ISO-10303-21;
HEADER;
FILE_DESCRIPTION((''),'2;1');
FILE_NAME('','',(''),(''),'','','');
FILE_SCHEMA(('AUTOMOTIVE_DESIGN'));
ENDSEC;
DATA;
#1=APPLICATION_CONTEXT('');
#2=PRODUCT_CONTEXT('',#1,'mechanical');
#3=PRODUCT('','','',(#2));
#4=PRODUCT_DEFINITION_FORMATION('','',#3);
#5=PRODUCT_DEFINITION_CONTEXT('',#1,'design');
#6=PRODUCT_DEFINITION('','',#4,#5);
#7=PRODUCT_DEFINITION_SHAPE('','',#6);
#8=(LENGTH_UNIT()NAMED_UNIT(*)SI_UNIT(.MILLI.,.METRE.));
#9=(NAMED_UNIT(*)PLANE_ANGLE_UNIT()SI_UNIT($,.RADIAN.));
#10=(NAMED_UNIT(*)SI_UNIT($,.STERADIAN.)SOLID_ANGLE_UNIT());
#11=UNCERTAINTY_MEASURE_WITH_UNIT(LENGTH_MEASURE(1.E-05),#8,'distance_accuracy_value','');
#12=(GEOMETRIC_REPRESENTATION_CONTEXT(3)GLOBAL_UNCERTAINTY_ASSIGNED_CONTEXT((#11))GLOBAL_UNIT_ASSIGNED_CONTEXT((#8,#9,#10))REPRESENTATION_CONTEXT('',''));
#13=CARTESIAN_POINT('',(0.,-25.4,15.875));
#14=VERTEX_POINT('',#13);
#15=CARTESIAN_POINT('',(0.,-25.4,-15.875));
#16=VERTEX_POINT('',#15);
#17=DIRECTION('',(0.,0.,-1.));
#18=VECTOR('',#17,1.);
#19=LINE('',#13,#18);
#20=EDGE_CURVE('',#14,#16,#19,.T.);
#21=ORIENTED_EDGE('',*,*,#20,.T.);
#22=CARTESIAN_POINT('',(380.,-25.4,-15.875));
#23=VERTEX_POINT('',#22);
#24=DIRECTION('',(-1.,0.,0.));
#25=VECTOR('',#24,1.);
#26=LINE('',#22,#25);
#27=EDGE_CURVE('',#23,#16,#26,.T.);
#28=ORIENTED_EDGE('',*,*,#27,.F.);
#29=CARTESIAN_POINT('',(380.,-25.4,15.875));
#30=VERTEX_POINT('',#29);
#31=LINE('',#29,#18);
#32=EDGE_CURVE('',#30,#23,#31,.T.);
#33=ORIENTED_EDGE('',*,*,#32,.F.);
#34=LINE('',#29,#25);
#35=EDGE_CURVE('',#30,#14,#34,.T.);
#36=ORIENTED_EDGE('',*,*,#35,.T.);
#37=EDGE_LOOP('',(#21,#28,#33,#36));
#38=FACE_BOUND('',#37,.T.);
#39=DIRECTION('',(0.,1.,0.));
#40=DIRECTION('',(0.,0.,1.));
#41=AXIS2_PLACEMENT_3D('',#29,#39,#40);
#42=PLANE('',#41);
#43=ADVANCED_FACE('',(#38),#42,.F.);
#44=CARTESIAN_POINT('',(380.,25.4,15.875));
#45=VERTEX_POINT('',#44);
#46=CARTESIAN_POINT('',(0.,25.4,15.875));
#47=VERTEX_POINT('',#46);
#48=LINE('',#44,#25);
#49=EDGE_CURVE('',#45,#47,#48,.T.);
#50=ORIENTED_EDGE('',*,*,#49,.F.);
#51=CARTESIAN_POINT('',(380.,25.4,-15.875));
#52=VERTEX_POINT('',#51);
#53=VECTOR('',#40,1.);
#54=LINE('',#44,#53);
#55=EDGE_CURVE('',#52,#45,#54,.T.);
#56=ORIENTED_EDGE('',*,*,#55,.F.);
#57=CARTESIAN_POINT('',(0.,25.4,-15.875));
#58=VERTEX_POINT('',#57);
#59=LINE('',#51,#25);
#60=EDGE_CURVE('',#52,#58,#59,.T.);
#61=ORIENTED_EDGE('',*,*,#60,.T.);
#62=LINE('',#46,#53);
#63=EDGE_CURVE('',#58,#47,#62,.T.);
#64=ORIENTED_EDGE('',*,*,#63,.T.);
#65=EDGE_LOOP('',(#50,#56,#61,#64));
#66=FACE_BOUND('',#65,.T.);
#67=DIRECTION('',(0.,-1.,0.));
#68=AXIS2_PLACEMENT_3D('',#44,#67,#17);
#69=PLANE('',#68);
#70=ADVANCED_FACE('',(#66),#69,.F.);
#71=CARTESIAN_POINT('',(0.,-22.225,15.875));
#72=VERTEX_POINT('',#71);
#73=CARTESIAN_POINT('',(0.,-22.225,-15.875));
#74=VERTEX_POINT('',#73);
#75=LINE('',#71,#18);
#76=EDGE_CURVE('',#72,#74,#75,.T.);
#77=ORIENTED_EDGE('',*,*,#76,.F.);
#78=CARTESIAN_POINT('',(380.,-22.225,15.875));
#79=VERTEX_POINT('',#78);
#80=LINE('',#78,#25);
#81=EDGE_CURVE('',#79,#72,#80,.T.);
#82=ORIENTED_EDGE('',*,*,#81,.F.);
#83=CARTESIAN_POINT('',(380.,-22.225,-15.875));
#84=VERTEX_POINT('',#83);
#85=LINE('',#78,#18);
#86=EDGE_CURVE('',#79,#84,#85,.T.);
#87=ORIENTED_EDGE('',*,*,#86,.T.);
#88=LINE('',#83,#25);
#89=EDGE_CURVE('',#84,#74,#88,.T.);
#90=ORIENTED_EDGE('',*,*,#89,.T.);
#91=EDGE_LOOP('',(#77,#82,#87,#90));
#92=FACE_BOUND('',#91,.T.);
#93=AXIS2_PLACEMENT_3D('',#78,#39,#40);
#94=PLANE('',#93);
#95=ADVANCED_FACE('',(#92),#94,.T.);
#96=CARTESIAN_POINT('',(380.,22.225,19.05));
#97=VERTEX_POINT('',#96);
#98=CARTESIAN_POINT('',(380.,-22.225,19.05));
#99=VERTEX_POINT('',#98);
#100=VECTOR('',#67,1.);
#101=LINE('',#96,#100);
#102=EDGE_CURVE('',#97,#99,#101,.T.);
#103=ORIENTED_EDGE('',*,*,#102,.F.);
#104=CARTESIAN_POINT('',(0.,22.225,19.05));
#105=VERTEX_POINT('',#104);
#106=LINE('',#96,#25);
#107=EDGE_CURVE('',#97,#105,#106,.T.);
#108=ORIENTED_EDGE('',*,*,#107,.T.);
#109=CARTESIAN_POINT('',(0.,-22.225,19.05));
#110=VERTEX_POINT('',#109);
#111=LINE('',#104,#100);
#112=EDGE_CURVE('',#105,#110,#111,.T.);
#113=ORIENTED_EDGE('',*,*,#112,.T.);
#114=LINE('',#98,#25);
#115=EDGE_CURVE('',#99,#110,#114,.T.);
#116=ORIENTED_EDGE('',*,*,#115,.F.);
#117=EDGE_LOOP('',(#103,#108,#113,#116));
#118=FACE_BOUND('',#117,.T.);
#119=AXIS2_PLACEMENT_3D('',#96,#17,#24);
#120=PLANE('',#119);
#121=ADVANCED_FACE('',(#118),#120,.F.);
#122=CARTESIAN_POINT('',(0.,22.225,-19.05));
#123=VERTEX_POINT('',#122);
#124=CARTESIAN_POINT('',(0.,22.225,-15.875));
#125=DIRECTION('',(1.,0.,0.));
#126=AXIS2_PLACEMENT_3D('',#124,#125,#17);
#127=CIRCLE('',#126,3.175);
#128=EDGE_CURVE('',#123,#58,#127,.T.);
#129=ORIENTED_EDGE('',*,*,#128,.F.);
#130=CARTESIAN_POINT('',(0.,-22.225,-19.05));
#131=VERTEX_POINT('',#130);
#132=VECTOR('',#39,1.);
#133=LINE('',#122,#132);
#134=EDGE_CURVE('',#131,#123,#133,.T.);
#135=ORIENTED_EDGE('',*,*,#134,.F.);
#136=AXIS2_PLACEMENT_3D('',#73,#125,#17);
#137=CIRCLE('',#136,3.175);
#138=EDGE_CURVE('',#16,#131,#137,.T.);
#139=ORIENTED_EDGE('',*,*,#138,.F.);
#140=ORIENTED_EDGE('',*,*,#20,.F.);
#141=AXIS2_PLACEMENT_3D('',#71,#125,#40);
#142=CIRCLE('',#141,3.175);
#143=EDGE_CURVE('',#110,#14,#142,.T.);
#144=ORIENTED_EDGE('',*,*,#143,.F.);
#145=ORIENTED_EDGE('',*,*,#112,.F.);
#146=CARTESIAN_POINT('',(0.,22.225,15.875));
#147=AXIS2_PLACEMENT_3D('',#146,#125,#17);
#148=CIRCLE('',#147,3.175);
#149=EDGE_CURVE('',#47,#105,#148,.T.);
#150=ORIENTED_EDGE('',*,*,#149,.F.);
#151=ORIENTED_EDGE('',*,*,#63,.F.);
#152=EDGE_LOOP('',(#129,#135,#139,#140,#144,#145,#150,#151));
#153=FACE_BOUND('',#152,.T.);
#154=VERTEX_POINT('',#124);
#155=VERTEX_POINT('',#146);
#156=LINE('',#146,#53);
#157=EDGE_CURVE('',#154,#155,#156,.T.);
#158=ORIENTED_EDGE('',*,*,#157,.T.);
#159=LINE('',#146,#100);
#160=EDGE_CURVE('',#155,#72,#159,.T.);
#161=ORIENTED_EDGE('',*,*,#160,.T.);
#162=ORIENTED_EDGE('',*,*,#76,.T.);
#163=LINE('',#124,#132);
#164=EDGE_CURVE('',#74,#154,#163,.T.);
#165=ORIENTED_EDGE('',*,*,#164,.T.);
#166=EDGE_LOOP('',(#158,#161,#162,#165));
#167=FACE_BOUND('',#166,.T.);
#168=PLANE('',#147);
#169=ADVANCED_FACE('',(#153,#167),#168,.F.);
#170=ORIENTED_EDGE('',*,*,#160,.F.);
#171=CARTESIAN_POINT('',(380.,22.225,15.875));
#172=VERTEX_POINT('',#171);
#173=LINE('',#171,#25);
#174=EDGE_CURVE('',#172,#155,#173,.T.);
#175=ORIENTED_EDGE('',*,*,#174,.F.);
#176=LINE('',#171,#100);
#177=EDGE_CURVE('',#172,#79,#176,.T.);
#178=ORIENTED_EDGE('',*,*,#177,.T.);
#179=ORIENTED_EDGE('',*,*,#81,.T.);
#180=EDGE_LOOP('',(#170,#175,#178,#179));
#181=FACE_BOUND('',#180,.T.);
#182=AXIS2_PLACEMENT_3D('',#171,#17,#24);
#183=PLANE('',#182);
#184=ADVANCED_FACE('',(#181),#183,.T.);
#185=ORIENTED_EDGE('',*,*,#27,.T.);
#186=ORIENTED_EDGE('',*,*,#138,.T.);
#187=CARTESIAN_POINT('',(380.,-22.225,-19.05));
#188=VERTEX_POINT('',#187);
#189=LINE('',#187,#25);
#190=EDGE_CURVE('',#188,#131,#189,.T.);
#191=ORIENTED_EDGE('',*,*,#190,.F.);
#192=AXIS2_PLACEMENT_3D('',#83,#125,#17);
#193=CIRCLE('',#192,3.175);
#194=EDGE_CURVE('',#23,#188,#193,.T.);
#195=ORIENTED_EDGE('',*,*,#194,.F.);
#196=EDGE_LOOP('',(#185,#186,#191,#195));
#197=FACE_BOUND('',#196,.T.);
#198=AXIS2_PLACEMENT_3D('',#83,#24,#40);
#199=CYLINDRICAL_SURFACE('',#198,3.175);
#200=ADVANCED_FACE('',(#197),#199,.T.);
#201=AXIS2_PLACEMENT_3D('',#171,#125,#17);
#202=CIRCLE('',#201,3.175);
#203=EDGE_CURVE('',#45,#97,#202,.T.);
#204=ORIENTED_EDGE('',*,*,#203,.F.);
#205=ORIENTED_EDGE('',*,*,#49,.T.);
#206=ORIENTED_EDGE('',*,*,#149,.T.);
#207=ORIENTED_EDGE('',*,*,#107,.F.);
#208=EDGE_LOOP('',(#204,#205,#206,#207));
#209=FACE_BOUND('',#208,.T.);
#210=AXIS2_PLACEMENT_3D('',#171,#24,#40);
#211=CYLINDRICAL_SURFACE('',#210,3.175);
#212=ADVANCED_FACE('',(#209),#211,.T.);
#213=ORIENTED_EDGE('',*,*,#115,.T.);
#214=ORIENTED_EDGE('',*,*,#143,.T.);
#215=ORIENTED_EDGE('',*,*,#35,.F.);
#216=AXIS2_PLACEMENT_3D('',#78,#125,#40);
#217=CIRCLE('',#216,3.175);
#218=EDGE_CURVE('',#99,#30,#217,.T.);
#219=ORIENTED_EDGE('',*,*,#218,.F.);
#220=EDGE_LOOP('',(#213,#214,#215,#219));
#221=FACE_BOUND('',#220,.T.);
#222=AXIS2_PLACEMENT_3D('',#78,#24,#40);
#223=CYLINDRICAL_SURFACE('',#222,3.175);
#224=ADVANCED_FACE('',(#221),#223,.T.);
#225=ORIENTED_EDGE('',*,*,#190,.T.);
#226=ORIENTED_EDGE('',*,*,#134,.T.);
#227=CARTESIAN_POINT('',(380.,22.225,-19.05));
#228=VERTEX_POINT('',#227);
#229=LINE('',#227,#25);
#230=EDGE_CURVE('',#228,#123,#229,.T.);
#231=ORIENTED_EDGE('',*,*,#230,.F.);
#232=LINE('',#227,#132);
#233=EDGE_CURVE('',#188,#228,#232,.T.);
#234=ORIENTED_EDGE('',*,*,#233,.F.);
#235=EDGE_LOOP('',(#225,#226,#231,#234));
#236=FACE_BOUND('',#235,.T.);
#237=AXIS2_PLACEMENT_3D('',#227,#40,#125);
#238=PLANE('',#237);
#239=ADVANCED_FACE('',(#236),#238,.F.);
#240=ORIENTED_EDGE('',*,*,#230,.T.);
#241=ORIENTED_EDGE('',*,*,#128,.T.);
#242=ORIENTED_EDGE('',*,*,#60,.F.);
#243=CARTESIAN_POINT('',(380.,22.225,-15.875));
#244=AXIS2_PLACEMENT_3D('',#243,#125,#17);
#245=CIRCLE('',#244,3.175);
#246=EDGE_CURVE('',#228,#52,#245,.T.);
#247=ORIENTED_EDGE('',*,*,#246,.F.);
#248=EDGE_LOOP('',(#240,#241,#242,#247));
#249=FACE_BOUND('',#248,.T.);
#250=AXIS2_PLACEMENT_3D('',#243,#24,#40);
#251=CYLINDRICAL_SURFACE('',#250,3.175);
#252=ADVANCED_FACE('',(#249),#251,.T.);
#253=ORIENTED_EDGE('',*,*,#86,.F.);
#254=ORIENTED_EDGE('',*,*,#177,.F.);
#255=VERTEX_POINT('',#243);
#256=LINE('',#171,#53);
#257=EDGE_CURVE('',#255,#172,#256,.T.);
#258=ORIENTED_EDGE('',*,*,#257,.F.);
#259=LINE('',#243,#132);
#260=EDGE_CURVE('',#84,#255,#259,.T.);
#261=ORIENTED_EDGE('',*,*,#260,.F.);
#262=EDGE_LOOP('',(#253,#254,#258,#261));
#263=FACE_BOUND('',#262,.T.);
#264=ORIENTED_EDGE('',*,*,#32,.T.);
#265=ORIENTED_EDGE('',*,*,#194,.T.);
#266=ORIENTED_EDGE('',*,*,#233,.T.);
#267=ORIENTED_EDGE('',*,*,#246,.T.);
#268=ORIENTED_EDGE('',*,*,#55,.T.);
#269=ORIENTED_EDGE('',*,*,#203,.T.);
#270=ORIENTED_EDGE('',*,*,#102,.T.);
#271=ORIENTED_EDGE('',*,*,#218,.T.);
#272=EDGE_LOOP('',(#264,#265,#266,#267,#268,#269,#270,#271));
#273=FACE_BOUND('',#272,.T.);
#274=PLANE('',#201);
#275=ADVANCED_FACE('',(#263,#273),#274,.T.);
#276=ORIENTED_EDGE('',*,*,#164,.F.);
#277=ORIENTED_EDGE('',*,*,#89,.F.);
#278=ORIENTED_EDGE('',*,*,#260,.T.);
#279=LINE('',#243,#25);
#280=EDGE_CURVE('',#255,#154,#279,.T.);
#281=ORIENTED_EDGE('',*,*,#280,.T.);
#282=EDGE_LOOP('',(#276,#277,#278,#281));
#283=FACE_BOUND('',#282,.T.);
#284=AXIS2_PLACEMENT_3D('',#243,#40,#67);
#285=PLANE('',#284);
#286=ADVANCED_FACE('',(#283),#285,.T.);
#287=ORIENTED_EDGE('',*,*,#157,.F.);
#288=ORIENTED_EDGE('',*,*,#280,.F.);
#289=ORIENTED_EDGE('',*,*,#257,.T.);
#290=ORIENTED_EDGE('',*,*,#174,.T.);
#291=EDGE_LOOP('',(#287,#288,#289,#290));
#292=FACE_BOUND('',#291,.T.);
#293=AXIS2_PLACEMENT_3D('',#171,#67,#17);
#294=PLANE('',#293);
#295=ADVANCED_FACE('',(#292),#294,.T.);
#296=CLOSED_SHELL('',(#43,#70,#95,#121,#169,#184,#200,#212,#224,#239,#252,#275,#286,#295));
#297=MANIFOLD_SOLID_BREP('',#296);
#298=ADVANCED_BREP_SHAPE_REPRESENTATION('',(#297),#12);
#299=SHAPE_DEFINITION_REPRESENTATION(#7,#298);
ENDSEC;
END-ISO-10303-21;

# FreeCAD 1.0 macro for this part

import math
import FreeCAD as App
import Part
import Sketcher
from FreeCAD import Vector
Q = App.Units.Quantity

doc = App.newDocument("Part")
params = doc.addObject("Spreadsheet::Sheet", "Params")
for row, (alias, value) in enumerate([
    ("sketch1_radius", "0.125 in"),
    ("sketch1_height", "1.25 in"),
    ("pad1_length", "380 mm"),
], start=1):
    params.set(f"A{row}", alias)
    params.set(f"B{row}", "=" + value)
    params.setAlias(f"B{row}", alias)

body = doc.addObject("PartDesign::Body", "Body")

sketch1 = body.newObject("Sketcher::SketchObject", "Sketch")
sketch1.AttachmentSupport = (doc.getObject("YZ_Plane"), [""])
sketch1.MapMode = "FlatFace"
sketch1.addGeometry([
    Part.LineSegment(Vector(25.4, -15.875, 0), Vector(25.4, 15.875, 0)),
    Part.ArcOfCircle(Part.Circle(Vector(22.225, 15.875, 0), Vector(0, 0, 1), 3.175), math.radians(0), math.radians(90)),
    Part.LineSegment(Vector(22.225, 19.05, 0), Vector(-22.225, 19.05, 0)),
    Part.ArcOfCircle(Part.Circle(Vector(-22.225, 15.875, 0), Vector(0, 0, 1), 3.175), math.radians(90), math.radians(180)),
    Part.LineSegment(Vector(-25.4, 15.875, 0), Vector(-25.4, -15.875, 0)),
    Part.ArcOfCircle(Part.Circle(Vector(-22.225, -15.875, 0), Vector(0, 0, 1), 3.175), math.radians(-180), math.radians(-90)),
    Part.LineSegment(Vector(-22.225, -19.05, 0), Vector(22.225, -19.05, 0)),
    Part.ArcOfCircle(Part.Circle(Vector(22.225, -15.875, 0), Vector(0, 0, 1), 3.175), math.radians(-90), math.radians(0)),
    Part.LineSegment(Vector(-22.225, 15.875, 0), Vector(22.225, 15.875, 0)),
    Part.LineSegment(Vector(22.225, 15.875, 0), Vector(22.225, -15.875, 0)),
    Part.LineSegment(Vector(22.225, -15.875, 0), Vector(-22.225, -15.875, 0)),
    Part.LineSegment(Vector(-22.225, -15.875, 0), Vector(-22.225, 15.875, 0)),
], False)
sketch1.addConstraint([
    Sketcher.Constraint("Tangent", 0, 2, 1, 1),
    Sketcher.Constraint("Tangent", 1, 2, 2, 1),
    Sketcher.Constraint("Tangent", 2, 2, 3, 1),
    Sketcher.Constraint("Tangent", 3, 2, 4, 1),
    Sketcher.Constraint("Tangent", 4, 2, 5, 1),
    Sketcher.Constraint("Tangent", 5, 2, 6, 1),
    Sketcher.Constraint("Tangent", 6, 2, 7, 1),
    Sketcher.Constraint("Tangent", 7, 2, 0, 1),
    Sketcher.Constraint("Coincident", 8, 2, 9, 1),
    Sketcher.Constraint("Coincident", 9, 2, 10, 1),
    Sketcher.Constraint("Coincident", 10, 2, 11, 1),
    Sketcher.Constraint("Coincident", 11, 2, 8, 1),
    Sketcher.Constraint("Vertical", 0),
    Sketcher.Constraint("Horizontal", 2),
    Sketcher.Constraint("Vertical", 4),
    Sketcher.Constraint("Horizontal", 6),
    Sketcher.Constraint("Horizontal", 8),
    Sketcher.Constraint("Vertical", 9),
    Sketcher.Constraint("Horizontal", 10),
    Sketcher.Constraint("Vertical", 11),
    Sketcher.Constraint("Coincident", 8, 2, 1, 3),
    Sketcher.Constraint("Coincident", 9, 2, 7, 3),
    Sketcher.Constraint("Coincident", 10, 2, 5, 3),
    Sketcher.Constraint("Equal", 1, 3),
    Sketcher.Constraint("Symmetric", 1, 3, 5, 3, -1, 1),
    Sketcher.Constraint("DistanceX", -1, 1, 0, 2, Q("1 in")),
    Sketcher.Constraint("Radius", 1, Q("0.125 in")),
    Sketcher.Constraint("DistanceY", 0, 1, 0, 2, Q("1.25 in")),
])
sketch1.setExpression("Constraints[26]", "Params.sketch1_radius")
sketch1.setExpression("Constraints[27]", "Params.sketch1_height")
pad1 = body.newObject("PartDesign::Pad", "Pad")
pad1.Profile = sketch1
pad1.setExpression("Length", "Params.pad1_length")

doc.recompute()
